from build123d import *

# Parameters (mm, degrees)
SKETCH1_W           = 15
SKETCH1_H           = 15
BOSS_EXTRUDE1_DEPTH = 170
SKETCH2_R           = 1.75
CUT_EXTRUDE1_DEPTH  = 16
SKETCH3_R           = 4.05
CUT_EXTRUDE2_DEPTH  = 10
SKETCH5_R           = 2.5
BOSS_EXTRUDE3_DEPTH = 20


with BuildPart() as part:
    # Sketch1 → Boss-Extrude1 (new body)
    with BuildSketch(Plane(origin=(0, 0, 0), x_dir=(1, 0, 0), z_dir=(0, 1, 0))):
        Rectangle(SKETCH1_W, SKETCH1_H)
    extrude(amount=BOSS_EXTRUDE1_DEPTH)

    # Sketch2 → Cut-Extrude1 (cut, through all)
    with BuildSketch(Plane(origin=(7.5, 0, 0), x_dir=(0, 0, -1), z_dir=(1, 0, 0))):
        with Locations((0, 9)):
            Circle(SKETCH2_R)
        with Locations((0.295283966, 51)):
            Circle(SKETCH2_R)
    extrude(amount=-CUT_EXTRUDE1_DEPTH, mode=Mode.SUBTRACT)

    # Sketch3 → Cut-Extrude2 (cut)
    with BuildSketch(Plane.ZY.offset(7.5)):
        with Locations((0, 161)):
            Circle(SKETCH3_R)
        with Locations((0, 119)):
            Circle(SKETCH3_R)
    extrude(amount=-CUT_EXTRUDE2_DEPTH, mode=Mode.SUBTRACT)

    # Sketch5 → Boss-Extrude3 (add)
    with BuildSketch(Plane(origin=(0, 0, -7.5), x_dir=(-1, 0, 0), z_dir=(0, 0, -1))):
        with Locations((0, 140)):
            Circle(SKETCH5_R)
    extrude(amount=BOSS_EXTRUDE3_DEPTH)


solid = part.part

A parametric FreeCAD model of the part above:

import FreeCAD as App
import Part
import Sketcher
from FreeCAD import Vector
Q = App.Units.Quantity

doc = App.newDocument("Part")
body = doc.addObject("PartDesign::Body", "Body")

# Sketch on XZ plane
sketch1 = body.newObject("Sketcher::SketchObject", "Sketch")
sketch1.AttachmentSupport = (doc.getObject("XZ_Plane"), [""])
sketch1.MapMode = "FlatFace"
sketch1.addGeometry(Part.LineSegment(Vector(-7.5, -7.5, 0), Vector(-7.5, 7.5, 0)), False)
sketch1.addGeometry(Part.LineSegment(Vector(-7.5, 7.5, 0), Vector(7.5, 7.5, 0)), False)
sketch1.addGeometry(Part.LineSegment(Vector(7.5, 7.5, 0), Vector(7.5, -7.5, 0)), False)
sketch1.addGeometry(Part.LineSegment(Vector(7.5, -7.5, 0), Vector(-7.5, -7.5, 0)), False)
sketch1.addConstraint(Sketcher.Constraint("Coincident", 0, 2, 1, 1))
sketch1.addConstraint(Sketcher.Constraint("Coincident", 1, 2, 2, 1))
sketch1.addConstraint(Sketcher.Constraint("Coincident", 2, 2, 3, 1))
sketch1.addConstraint(Sketcher.Constraint("Coincident", 3, 2, 0, 1))
sketch1.addConstraint(Sketcher.Constraint("Vertical", 0))
sketch1.addConstraint(Sketcher.Constraint("Horizontal", 1))
sketch1.addConstraint(Sketcher.Constraint("Vertical", 2))
sketch1.addConstraint(Sketcher.Constraint("Horizontal", 3))
sketch1.addConstraint(Sketcher.Constraint("Symmetric", 0, 2, 2, 2, -1, 1))
sketch1.addConstraint(Sketcher.Constraint("Equal", 3, 0))
sketch1.addConstraint(Sketcher.Constraint("DistanceX", 1, 1, 1, 2, Q("15 mm")))
pad1 = body.newObject("PartDesign::Pad", "Pad")
pad1.Profile = sketch1
pad1.Length = 170
pad1.Reversed = True

# Sketch on YZ plane
sketch2 = body.newObject("Sketcher::SketchObject", "Sketch001")
sketch2.AttachmentSupport = (doc.getObject("YZ_Plane"), [""])
sketch2.MapMode = "FlatFace"
sketch2.AttachmentOffset = App.Placement(Vector(0, 0, 7.5), App.Rotation())
sketch2.addGeometry(Part.Circle(Vector(9, 0, 0), Vector(0, 0, 1), 1.75), False)
sketch2.addGeometry(Part.Circle(Vector(51, -0.295284, 0), Vector(0, 0, 1), 1.75), False)
sketch2.addConstraint(Sketcher.Constraint("Equal", 0, 1))
sketch2.addConstraint(Sketcher.Constraint("PointOnObject", 0, 3, -1))
sketch2.addConstraint(Sketcher.Constraint("Diameter", 0, Q("3.5 mm")))
sketch2.addConstraint(Sketcher.Constraint("DistanceX", -1, 1, 0, 3, Q("9 mm")))
sketch2.addConstraint(Sketcher.Constraint("DistanceX", -1, 1, 1, 3, Q("51 mm")))
sketch2.addConstraint(Sketcher.Constraint("DistanceY", 1, 3, -1, 1, Q("0.295284 mm")))
pocket1 = body.newObject("PartDesign::Pocket", "Pocket")
pocket1.Profile = sketch2
pocket1.Type = "ThroughAll"

# Sketch on YZ plane
sketch3 = body.newObject("Sketcher::SketchObject", "Sketch002")
sketch3.AttachmentSupport = (doc.getObject("YZ_Plane"), [""])
sketch3.MapMode = "FlatFace"
sketch3.AttachmentOffset = App.Placement(Vector(0, 0, -7.5), App.Rotation())
sketch3.addGeometry(Part.Circle(Vector(161, 0, 0), Vector(0, 0, 1), 4.05), False)
sketch3.addGeometry(Part.Circle(Vector(119, 0, 0), Vector(0, 0, 1), 4.05), False)
sketch3.addConstraint(Sketcher.Constraint("Equal", 0, 1))
sketch3.addConstraint(Sketcher.Constraint("PointOnObject", 0, 3, -1))
sketch3.addConstraint(Sketcher.Constraint("PointOnObject", 1, 3, -1))
sketch3.addConstraint(Sketcher.Constraint("Diameter", 0, Q("8.1 mm")))
sketch3.addConstraint(Sketcher.Constraint("DistanceX", -1, 1, 0, 3, Q("161 mm")))
sketch3.addConstraint(Sketcher.Constraint("DistanceX", -1, 1, 1, 3, Q("119 mm")))
pocket2 = body.newObject("PartDesign::Pocket", "Pocket001")
pocket2.Profile = sketch3
pocket2.Length = 10
pocket2.Reversed = True

# Sketch on XY plane
sketch4 = body.newObject("Sketcher::SketchObject", "Sketch003")
sketch4.AttachmentSupport = (doc.getObject("XY_Plane"), [""])
sketch4.MapMode = "FlatFace"
sketch4.AttachmentOffset = App.Placement(Vector(0, 0, -7.5), App.Rotation())
sketch4.addGeometry(Part.Circle(Vector(0, 140, 0), Vector(0, 0, 1), 2.5), False)
sketch4.addConstraint(Sketcher.Constraint("PointOnObject", 0, 3, -2))
sketch4.addConstraint(Sketcher.Constraint("Diameter", 0, Q("5 mm")))
sketch4.addConstraint(Sketcher.Constraint("DistanceY", -1, 1, 0, 3, Q("140 mm")))
pad2 = body.newObject("PartDesign::Pad", "Pad001")
pad2.Profile = sketch4
pad2.Length = 20
pad2.Reversed = True

doc.recompute()
